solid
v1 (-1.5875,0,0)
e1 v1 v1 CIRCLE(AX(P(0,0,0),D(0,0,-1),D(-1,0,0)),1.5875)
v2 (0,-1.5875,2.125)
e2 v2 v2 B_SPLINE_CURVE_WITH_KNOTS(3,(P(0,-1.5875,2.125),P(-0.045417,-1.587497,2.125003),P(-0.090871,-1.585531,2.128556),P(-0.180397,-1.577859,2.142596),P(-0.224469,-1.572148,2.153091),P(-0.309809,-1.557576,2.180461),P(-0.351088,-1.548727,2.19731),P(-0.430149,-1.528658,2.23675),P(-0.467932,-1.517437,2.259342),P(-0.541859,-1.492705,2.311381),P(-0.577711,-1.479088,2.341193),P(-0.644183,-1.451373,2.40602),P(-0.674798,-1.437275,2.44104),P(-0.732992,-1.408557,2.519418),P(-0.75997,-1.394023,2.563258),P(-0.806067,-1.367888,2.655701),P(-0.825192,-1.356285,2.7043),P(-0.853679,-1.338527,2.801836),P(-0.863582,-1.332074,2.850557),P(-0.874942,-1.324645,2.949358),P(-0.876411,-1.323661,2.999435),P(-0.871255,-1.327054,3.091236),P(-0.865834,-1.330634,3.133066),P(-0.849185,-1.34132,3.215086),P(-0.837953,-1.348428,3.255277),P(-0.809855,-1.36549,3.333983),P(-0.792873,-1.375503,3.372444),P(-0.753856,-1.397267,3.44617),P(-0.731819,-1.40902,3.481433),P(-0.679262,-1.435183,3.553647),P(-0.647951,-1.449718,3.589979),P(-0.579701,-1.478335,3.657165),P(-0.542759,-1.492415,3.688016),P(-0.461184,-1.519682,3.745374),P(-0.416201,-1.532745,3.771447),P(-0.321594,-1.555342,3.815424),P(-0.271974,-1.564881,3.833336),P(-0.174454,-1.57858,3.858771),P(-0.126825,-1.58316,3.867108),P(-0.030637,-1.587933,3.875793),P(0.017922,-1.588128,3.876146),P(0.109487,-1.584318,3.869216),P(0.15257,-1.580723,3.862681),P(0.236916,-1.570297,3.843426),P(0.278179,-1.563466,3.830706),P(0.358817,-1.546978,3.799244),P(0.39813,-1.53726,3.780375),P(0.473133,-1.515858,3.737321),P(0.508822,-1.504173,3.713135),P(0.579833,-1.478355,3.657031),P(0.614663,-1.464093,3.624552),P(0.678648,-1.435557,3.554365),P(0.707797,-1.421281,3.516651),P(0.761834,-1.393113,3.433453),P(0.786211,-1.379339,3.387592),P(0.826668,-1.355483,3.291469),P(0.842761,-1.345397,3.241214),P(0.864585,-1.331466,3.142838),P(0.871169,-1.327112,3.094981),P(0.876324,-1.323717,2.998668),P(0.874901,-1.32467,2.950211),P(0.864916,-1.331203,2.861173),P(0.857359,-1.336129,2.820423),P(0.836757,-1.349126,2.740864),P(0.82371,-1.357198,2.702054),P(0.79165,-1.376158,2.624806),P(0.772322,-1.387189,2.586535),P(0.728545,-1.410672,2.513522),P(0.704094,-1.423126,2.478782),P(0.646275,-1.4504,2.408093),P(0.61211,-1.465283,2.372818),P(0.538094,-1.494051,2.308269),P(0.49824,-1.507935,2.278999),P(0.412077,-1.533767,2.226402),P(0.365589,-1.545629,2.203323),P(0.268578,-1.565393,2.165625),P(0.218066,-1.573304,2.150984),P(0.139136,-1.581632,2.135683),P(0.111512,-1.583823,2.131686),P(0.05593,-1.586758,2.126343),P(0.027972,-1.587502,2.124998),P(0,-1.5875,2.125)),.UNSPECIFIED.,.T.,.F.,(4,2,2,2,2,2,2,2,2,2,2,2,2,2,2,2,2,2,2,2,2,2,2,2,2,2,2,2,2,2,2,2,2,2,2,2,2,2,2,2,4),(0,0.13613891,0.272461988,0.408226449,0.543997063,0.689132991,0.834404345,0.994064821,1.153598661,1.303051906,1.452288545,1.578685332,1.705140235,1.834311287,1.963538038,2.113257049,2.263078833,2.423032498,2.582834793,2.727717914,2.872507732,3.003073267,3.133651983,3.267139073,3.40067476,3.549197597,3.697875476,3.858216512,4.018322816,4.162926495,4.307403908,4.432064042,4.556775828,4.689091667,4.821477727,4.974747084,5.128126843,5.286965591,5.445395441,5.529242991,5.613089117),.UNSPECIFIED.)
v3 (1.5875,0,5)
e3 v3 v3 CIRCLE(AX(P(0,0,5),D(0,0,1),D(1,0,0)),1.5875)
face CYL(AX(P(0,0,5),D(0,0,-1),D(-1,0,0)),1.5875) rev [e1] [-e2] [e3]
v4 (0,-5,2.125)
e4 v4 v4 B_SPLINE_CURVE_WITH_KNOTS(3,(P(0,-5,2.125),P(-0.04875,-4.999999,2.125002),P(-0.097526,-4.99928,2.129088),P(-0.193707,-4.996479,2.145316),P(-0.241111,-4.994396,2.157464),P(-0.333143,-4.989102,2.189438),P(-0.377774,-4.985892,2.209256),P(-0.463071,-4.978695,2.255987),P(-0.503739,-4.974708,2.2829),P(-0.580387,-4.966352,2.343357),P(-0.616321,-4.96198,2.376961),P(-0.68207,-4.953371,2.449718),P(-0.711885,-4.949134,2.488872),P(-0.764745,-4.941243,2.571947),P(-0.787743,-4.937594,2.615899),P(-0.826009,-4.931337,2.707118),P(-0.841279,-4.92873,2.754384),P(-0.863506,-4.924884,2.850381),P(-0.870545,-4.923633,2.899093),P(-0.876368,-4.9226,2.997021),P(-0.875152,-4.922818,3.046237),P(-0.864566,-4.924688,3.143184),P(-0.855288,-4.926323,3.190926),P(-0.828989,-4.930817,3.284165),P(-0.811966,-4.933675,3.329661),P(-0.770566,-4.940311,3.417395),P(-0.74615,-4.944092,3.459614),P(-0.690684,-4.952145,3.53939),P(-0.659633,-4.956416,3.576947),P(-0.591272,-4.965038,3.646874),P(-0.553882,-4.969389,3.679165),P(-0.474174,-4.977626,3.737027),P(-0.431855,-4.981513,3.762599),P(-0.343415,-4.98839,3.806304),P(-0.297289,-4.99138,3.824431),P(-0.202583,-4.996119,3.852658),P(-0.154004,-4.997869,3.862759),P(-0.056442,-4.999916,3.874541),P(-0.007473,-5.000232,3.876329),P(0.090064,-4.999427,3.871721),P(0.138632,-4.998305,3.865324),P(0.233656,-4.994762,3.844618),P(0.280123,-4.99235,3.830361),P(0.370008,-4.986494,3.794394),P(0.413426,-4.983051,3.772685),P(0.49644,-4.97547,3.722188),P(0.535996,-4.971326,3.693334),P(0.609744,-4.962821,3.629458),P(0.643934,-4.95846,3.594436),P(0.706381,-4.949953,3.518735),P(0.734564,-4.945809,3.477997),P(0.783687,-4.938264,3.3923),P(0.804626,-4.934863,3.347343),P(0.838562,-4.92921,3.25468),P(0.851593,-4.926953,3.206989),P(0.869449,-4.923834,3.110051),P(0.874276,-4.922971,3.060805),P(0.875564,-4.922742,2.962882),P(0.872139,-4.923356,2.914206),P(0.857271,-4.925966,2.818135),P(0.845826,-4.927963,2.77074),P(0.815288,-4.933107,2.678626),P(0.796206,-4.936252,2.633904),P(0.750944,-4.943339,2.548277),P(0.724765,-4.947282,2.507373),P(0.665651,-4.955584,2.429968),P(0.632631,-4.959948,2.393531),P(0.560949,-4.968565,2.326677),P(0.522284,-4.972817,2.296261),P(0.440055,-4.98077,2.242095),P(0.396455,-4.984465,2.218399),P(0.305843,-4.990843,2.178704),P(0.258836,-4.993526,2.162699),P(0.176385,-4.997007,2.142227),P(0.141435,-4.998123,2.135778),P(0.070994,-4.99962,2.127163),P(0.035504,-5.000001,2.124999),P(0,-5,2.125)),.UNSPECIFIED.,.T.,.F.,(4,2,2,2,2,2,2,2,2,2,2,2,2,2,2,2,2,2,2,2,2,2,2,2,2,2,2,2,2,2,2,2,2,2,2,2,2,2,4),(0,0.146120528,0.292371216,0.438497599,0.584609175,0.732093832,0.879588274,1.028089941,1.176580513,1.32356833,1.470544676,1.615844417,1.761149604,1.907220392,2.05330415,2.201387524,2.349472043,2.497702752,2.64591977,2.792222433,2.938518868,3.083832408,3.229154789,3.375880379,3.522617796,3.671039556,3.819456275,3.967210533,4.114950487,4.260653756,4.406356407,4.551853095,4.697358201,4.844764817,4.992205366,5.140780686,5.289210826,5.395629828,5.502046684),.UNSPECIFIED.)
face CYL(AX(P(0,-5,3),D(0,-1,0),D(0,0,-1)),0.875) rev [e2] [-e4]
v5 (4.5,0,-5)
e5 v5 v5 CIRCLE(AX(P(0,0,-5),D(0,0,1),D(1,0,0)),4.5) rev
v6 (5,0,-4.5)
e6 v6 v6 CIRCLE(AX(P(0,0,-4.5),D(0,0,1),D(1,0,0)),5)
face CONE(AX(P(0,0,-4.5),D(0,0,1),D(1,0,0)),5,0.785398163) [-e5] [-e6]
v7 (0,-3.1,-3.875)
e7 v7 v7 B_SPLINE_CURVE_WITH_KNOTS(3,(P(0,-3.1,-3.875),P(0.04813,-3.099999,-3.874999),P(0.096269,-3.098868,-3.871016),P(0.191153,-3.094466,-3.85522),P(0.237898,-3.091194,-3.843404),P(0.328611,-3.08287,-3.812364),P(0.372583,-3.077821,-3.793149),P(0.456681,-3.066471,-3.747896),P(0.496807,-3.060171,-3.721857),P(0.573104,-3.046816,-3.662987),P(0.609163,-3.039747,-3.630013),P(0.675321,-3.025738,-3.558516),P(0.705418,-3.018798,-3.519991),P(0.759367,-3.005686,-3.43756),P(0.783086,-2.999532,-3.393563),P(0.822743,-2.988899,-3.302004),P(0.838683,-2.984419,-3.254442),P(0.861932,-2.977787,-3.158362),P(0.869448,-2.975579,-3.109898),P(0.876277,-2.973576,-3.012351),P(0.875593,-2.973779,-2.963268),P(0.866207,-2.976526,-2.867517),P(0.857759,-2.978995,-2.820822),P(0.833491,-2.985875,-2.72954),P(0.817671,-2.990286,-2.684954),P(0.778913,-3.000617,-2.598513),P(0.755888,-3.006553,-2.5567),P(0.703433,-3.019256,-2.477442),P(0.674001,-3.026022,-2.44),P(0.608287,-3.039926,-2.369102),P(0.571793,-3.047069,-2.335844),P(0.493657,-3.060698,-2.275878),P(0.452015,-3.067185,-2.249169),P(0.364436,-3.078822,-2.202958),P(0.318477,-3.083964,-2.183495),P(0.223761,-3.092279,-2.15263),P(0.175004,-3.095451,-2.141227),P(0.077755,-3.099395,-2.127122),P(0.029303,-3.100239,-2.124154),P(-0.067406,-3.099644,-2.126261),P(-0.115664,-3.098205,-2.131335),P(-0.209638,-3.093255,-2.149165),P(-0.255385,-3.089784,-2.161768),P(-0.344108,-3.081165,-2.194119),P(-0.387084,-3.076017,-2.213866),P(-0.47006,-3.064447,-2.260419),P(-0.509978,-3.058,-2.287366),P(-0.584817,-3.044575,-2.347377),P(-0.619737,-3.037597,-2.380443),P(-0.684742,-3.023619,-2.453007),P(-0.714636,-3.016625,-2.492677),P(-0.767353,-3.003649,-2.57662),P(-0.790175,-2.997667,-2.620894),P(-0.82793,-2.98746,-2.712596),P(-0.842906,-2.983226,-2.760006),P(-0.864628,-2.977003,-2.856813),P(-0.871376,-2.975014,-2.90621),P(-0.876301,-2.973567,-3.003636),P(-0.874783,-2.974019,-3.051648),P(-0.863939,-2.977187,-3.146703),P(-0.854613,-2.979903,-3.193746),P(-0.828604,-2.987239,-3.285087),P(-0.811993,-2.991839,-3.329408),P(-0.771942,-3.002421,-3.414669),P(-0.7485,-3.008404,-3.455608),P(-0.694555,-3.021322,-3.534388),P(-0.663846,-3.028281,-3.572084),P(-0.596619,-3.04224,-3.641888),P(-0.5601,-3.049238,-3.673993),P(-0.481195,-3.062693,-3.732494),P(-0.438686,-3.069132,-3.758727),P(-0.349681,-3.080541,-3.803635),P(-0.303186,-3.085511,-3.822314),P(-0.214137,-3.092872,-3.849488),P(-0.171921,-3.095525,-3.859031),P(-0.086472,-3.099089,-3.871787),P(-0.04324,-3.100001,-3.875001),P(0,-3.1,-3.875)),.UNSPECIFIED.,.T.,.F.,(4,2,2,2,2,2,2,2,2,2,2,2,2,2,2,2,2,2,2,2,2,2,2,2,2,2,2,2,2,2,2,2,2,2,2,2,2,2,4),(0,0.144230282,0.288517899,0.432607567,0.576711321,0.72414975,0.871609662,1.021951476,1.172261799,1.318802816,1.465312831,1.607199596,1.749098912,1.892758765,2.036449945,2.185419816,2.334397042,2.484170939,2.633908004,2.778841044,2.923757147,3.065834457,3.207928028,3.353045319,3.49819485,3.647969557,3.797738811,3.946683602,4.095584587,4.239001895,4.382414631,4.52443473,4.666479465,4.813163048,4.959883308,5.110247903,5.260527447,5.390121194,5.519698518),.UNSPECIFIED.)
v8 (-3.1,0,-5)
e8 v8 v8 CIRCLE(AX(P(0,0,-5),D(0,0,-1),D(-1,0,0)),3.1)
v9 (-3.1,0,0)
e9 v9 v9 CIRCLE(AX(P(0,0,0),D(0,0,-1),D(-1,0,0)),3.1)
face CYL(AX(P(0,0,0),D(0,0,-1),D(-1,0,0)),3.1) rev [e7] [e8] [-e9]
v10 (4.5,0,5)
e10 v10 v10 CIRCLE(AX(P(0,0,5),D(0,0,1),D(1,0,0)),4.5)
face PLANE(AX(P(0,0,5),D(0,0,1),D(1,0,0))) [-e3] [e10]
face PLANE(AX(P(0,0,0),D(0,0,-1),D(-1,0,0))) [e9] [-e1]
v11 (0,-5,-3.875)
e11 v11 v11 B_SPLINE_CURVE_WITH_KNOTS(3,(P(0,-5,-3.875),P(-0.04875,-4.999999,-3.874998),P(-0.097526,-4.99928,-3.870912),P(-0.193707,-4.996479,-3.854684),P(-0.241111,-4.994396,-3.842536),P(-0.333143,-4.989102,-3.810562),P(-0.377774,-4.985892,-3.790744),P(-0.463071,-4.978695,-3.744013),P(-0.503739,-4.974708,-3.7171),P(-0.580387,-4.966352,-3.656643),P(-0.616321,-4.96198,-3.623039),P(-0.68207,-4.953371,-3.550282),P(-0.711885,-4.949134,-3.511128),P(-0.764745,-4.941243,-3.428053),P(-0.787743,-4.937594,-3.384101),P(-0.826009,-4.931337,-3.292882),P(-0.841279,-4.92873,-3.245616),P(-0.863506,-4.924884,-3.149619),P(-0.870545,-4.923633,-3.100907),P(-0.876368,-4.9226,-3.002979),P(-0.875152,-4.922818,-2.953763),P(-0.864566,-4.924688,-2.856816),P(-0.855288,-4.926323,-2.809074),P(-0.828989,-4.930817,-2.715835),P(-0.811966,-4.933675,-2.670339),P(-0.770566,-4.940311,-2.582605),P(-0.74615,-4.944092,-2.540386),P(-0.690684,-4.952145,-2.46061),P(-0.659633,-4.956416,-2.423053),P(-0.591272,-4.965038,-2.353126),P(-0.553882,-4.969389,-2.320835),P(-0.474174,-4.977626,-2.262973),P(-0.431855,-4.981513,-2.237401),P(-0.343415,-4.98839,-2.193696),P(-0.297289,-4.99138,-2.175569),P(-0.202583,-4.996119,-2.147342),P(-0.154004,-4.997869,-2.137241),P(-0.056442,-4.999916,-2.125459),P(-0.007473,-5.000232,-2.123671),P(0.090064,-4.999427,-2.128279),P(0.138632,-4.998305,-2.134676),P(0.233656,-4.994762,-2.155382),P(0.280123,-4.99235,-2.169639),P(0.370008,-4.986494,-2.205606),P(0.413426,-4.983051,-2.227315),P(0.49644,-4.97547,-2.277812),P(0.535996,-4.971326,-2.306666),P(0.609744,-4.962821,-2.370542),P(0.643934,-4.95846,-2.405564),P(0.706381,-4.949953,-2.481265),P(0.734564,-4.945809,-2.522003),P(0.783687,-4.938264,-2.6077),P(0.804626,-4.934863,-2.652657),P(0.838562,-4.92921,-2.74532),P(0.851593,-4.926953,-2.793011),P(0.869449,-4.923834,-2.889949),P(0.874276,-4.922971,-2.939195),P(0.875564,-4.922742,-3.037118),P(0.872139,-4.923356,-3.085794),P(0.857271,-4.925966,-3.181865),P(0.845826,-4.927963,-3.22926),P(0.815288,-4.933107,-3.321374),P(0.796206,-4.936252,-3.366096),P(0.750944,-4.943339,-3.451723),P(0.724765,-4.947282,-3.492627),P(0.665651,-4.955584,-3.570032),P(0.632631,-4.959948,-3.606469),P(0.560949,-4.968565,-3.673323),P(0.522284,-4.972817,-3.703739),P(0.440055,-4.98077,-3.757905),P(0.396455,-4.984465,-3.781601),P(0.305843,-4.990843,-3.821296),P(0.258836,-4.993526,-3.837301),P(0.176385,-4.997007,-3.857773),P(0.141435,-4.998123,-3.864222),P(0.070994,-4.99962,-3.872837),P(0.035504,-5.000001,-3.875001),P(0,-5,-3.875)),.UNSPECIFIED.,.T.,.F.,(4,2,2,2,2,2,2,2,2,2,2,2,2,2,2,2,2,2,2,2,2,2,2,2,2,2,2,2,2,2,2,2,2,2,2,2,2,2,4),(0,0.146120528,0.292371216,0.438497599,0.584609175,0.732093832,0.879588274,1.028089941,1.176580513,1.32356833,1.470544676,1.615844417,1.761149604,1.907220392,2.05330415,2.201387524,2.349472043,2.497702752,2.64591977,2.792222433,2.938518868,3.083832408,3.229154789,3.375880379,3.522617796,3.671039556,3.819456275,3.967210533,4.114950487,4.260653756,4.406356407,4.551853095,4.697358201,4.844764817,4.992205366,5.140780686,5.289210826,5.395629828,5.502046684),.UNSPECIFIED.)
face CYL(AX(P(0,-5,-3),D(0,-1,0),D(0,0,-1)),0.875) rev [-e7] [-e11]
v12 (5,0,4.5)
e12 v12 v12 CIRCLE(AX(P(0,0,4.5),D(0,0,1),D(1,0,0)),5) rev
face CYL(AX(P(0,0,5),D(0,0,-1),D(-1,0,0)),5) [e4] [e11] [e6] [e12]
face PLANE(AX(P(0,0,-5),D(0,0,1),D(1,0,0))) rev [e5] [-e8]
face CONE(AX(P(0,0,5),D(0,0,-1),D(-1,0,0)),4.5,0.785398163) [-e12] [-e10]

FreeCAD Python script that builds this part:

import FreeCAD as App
import Part
import Sketcher
from FreeCAD import Vector


def edges_at(feature, points):
    """Names of the edges that pass closest to the given points."""
    edges = feature.Shape.Edges
    near = lambda p: min(range(len(edges)), key=lambda i: edges[i].distToShape(Part.Vertex(*p))[0])
    return sorted({f"Edge{near(p) + 1}" for p in points})

doc = App.newDocument("Part")
body = doc.addObject("PartDesign::Body", "Body")

sketch1 = body.newObject("Sketcher::SketchObject", "Sketch")
sketch1.AttachmentSupport = (doc.getObject("XY_Plane"), [""])
sketch1.MapMode = "FlatFace"
sketch1.addGeometry([
    Part.Circle(Vector(0, 0, 0), Vector(0, 0, 1), 5),
    Part.Circle(Vector(0, 0, 0), Vector(0, 0, 1), 1.5875),
], False)
sketch1.addConstraint([
    Sketcher.Constraint("Coincident", 0, 3, -1, 1),
    Sketcher.Constraint("Coincident", 1, 3, -1, 1),
    Sketcher.Constraint("Diameter", 0, 10.0),
    Sketcher.Constraint("Diameter", 1, 3.175),
])
pad1 = body.newObject("PartDesign::Pad", "Pad")
pad1.Profile = sketch1
pad1.Length = 10
pad1.Midplane = True

sketch2 = body.newObject("Sketcher::SketchObject", "Sketch001")
sketch2.AttachmentSupport = (doc.getObject("XY_Plane"), [""])
sketch2.MapMode = "FlatFace"
sketch2.AttachmentOffset = App.Placement(Vector(0, 0, -5), App.Rotation())
sketch2.addGeometry(Part.Circle(Vector(0, 0, 0), Vector(0, 0, 1), 3.1), False)
sketch2.addConstraint([
    Sketcher.Constraint("Coincident", 0, 3, -1, 1),
    Sketcher.Constraint("Diameter", 0, 6.2),
])
pocket1 = body.newObject("PartDesign::Pocket", "Pocket")
pocket1.Profile = sketch2
pocket1.Length = 5
pocket1.Reversed = True
doc.recompute()

chamfer = body.newObject("PartDesign::Chamfer", "Chamfer")
chamfer.Base = (pocket1, edges_at(pocket1, [(-5, 0, -5), (-5, 0, 5)]))
chamfer.Size = 0.5

sketch3 = body.newObject("Sketcher::SketchObject", "Sketch002")
sketch3.AttachmentSupport = (doc.getObject("XZ_Plane"), [""])
sketch3.MapMode = "FlatFace"
sketch3.AttachmentOffset = App.Placement(Vector(0, 0, 5), App.Rotation())
sketch3.addGeometry(Part.Circle(Vector(0, 3, 0), Vector(0, 0, 1), 0.875), False)
sketch3.addConstraint([
    Sketcher.Constraint("PointOnObject", 0, 3, -2),
    Sketcher.Constraint("Diameter", 0, 1.75),
    Sketcher.Constraint("DistanceY", -1, 1, 0, 3, 3.0),
])
pocket2 = body.newObject("PartDesign::Pocket", "Pocket001")
pocket2.Profile = sketch3
pocket2.Length = 3.675413

sketch4 = body.newObject("Sketcher::SketchObject", "Sketch003")
sketch4.AttachmentSupport = (doc.getObject("XZ_Plane"), [""])
sketch4.MapMode = "FlatFace"
sketch4.AttachmentOffset = App.Placement(Vector(0, 0, 5), App.Rotation())
sketch4.addGeometry(Part.Circle(Vector(0, -3, 0), Vector(0, 0, 1), 0.875), False)
sketch4.addConstraint([
    Sketcher.Constraint("PointOnObject", 0, 3, -2),
    Sketcher.Constraint("Diameter", 0, 1.75),
    Sketcher.Constraint("DistanceY", 0, 3, -1, 1, 3.0),
])
pocket3 = body.newObject("PartDesign::Pocket", "Pocket002")
pocket3.Profile = sketch4
pocket3.Length = 2.026051

doc.recompute()
